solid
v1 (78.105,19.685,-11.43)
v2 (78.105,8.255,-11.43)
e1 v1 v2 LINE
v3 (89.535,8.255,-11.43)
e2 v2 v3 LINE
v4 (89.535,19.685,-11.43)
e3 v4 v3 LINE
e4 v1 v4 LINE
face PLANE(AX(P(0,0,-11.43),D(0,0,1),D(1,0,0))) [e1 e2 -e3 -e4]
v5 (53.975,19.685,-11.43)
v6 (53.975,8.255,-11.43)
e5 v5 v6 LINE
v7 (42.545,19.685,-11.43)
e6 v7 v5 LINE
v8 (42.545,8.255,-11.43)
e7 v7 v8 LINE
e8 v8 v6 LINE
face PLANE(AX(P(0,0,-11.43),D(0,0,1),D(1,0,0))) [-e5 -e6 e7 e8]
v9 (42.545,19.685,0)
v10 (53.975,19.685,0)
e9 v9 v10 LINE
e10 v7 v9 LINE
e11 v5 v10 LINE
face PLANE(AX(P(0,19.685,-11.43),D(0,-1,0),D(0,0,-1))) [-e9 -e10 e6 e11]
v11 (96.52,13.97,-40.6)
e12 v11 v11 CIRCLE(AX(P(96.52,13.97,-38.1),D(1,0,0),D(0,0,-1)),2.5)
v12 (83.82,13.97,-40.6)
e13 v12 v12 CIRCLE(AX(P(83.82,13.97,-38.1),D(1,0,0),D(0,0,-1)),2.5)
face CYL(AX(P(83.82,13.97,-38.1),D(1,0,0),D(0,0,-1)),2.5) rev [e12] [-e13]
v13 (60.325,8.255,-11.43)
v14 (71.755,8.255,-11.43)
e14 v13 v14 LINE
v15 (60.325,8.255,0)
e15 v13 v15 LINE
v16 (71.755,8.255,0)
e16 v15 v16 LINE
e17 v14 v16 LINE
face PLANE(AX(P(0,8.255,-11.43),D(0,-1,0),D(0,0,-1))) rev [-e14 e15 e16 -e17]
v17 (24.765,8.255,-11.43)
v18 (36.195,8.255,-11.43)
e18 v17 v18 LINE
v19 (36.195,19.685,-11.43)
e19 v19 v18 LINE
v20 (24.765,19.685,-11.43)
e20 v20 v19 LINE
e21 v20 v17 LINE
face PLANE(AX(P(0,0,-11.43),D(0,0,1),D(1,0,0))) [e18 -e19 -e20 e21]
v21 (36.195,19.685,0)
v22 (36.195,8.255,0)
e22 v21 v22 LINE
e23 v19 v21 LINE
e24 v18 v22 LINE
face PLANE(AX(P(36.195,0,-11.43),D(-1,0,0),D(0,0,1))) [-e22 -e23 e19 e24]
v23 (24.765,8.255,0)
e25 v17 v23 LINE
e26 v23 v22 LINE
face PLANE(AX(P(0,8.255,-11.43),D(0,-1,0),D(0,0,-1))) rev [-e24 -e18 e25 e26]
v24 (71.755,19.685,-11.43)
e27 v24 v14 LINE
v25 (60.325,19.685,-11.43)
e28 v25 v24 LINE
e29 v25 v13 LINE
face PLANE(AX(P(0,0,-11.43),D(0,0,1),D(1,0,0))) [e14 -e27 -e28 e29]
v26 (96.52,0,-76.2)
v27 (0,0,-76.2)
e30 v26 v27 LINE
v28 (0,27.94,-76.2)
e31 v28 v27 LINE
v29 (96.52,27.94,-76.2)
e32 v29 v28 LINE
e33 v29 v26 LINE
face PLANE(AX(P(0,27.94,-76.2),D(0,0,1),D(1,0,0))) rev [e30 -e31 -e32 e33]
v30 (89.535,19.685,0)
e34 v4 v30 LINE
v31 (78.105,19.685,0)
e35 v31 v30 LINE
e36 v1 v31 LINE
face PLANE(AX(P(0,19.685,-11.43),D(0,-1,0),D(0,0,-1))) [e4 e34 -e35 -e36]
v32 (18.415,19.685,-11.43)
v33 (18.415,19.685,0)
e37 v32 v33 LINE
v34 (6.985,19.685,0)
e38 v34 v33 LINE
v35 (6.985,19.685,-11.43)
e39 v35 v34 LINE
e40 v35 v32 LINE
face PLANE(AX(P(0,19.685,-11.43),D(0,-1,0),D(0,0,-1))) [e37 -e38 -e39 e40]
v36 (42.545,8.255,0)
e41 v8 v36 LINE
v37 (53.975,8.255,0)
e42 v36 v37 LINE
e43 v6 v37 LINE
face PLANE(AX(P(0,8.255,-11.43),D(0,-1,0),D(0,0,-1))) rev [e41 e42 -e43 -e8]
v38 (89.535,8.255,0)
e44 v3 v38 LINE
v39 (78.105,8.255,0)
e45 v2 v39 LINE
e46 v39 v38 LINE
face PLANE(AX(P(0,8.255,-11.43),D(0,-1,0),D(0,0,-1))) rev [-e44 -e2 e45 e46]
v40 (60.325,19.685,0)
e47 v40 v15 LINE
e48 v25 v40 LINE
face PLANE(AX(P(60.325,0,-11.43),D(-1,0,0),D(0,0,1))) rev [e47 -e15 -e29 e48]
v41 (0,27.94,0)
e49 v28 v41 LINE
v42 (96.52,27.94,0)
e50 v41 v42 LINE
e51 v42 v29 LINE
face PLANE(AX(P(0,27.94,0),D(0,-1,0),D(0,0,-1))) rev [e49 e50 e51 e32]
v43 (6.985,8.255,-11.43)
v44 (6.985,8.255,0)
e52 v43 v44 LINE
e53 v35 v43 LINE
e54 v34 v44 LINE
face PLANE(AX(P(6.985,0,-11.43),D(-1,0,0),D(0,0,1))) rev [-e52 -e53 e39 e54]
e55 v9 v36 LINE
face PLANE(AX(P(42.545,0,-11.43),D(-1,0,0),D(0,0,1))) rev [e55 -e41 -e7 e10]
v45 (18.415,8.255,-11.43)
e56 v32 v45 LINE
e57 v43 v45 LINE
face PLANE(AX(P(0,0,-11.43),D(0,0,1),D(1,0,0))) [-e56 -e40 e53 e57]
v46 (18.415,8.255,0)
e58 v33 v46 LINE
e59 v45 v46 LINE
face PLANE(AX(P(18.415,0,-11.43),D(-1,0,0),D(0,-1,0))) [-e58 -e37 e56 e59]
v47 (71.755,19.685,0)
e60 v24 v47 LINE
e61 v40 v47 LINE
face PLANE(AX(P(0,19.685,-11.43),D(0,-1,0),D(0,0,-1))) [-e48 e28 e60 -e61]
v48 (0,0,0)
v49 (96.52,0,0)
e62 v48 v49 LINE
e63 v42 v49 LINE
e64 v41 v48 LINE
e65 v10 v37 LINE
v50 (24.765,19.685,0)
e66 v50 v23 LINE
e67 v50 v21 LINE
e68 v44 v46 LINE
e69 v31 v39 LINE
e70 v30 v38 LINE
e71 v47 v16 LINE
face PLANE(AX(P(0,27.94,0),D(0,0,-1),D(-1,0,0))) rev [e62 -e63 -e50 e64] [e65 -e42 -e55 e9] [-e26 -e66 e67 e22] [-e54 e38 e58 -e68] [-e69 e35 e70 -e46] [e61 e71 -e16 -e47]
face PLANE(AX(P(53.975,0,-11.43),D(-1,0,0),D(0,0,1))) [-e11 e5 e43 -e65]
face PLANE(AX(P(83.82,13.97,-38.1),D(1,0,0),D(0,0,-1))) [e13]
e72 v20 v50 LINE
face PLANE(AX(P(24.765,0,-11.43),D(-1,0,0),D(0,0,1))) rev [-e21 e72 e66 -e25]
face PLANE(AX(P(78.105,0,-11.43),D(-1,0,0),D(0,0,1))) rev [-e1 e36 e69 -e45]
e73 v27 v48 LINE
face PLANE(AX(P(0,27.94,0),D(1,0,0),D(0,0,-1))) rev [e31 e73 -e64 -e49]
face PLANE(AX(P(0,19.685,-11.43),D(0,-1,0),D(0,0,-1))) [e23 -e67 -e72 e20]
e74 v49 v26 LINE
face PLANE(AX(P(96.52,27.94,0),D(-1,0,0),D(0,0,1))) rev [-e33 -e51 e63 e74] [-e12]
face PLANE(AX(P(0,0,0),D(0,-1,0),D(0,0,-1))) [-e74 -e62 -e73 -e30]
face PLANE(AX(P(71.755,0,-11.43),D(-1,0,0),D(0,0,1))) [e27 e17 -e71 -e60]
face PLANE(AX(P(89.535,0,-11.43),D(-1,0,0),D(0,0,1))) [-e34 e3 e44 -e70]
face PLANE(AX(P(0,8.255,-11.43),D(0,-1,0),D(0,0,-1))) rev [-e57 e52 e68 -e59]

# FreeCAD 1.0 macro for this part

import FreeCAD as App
import Part
import Sketcher
Q = App.Units.Quantity


def add_polygon(sketch, points):
    """Adds a closed chain of lines whose ends are joined by coincident constraints."""
    first, n = sketch.GeometryCount, len(points)
    for a, b in zip(points, points[1:] + points[:1]):
        sketch.addGeometry(Part.LineSegment(App.Vector(*a, 0), App.Vector(*b, 0)), False)
    for i in range(n):
        sketch.addConstraint(Sketcher.Constraint("Coincident", first + i, 2, first + (i + 1) % n, 1))

doc = App.newDocument("Part")
params = doc.addObject("Spreadsheet::Sheet", "Params")
for row, (alias, value) in enumerate([
    ("sketch1_height", "3 in"),
    ("sketch1_width", "3.8 in"),
    ("pad1_length", "1.1 in"),
    ("sketch2_width", "0.45 in"),
    ("pocket1_length", "0.45 in"),
    ("pocket2_length", "0.5 in"),
], start=1):
    params.set(f"A{row}", alias)
    params.set(f"B{row}", "=" + value)
    params.setAlias(f"B{row}", alias)

body = doc.addObject("PartDesign::Body", "Body")

sketch1 = body.newObject("Sketcher::SketchObject", "Sketch")
sketch1.AttachmentSupport = (doc.getObject("XZ_Plane"), [""])
sketch1.MapMode = "FlatFace"
add_polygon(sketch1, [(0, -76), (0, 0), (97, 0), (97, -76)])
sketch1.addConstraint(Sketcher.Constraint("Vertical", 0))
sketch1.addConstraint(Sketcher.Constraint("Horizontal", 1))
sketch1.addConstraint(Sketcher.Constraint("Vertical", 2))
sketch1.addConstraint(Sketcher.Constraint("Horizontal", 3))
sketch1.addConstraint(Sketcher.Constraint("Coincident", 0, 2, -1, 1))
sketch1.addConstraint(Sketcher.Constraint("DistanceY", 0, 1, 0, 2, Q("3 in")))
sketch1.addConstraint(Sketcher.Constraint("DistanceX", 1, 1, 1, 2, Q("3.8 in")))
sketch1.setExpression("Constraints[9]", "Params.sketch1_height")
sketch1.setExpression("Constraints[10]", "Params.sketch1_width")
pad1 = body.newObject("PartDesign::Pad", "Pad")
pad1.Profile = sketch1
pad1.setExpression("Length", "Params.pad1_length")
pad1.Reversed = True

sketch2 = body.newObject("Sketcher::SketchObject", "Sketch001")
sketch2.AttachmentSupport = (doc.getObject("XY_Plane"), [""])
sketch2.MapMode = "FlatFace"
add_polygon(sketch2, [(7, 20), (7, 8), (18, 8), (18, 20)])
add_polygon(sketch2, [(25, 20), (25, 8), (36, 8), (36, 20)])
add_polygon(sketch2, [(43, 20), (43, 8), (54, 8), (54, 20)])
add_polygon(sketch2, [(60, 20), (60, 8), (72, 8), (72, 20)])
add_polygon(sketch2, [(78, 20), (78, 8), (90, 8), (90, 20)])
sketch2.addConstraint(Sketcher.Constraint("Vertical", 0))
sketch2.addConstraint(Sketcher.Constraint("Horizontal", 1))
sketch2.addConstraint(Sketcher.Constraint("Vertical", 2))
sketch2.addConstraint(Sketcher.Constraint("Horizontal", 3))
sketch2.addConstraint(Sketcher.Constraint("Vertical", 4))
sketch2.addConstraint(Sketcher.Constraint("Horizontal", 5))
sketch2.addConstraint(Sketcher.Constraint("Vertical", 6))
sketch2.addConstraint(Sketcher.Constraint("Horizontal", 7))
sketch2.addConstraint(Sketcher.Constraint("Vertical", 8))
sketch2.addConstraint(Sketcher.Constraint("Horizontal", 9))
sketch2.addConstraint(Sketcher.Constraint("Vertical", 10))
sketch2.addConstraint(Sketcher.Constraint("Horizontal", 11))
sketch2.addConstraint(Sketcher.Constraint("Vertical", 12))
sketch2.addConstraint(Sketcher.Constraint("Horizontal", 13))
sketch2.addConstraint(Sketcher.Constraint("Vertical", 14))
sketch2.addConstraint(Sketcher.Constraint("Horizontal", 15))
sketch2.addConstraint(Sketcher.Constraint("Vertical", 16))
sketch2.addConstraint(Sketcher.Constraint("Horizontal", 17))
sketch2.addConstraint(Sketcher.Constraint("Vertical", 18))
sketch2.addConstraint(Sketcher.Constraint("Horizontal", 19))
sketch2.addConstraint(Sketcher.Constraint("Horizontal", 1, 2, 4, 2))
sketch2.addConstraint(Sketcher.Constraint("Horizontal", 3, 2, 6, 2))
sketch2.addConstraint(Sketcher.Constraint("Horizontal", 5, 2, 8, 2))
sketch2.addConstraint(Sketcher.Constraint("Horizontal", 7, 2, 10, 2))
sketch2.addConstraint(Sketcher.Constraint("Horizontal", 9, 2, 12, 2))
sketch2.addConstraint(Sketcher.Constraint("Horizontal", 11, 2, 14, 2))
sketch2.addConstraint(Sketcher.Constraint("Horizontal", 13, 2, 16, 2))
sketch2.addConstraint(Sketcher.Constraint("Horizontal", 15, 2, 18, 2))
sketch2.addConstraint(Sketcher.Constraint("Equal", 3, 5))
sketch2.addConstraint(Sketcher.Constraint("Equal", 7, 9))
sketch2.addConstraint(Sketcher.Constraint("Equal", 11, 13))
sketch2.addConstraint(Sketcher.Constraint("Equal", 15, 17))
sketch2.addConstraint(Sketcher.Constraint("Equal", 19, 0))
sketch2.addConstraint(Sketcher.Constraint("DistanceX", 1, 1, 1, 2, Q("0.45 in")))
sketch2.addConstraint(Sketcher.Constraint("DistanceX", 0, 2, 4, 2, Q("0.7 in")))
sketch2.addConstraint(Sketcher.Constraint("DistanceX", 4, 2, 8, 2, Q("0.7 in")))
sketch2.addConstraint(Sketcher.Constraint("DistanceX", 8, 2, 12, 2, Q("0.7 in")))
sketch2.addConstraint(Sketcher.Constraint("DistanceX", 12, 2, 16, 2, Q("0.7 in")))
sketch2.addConstraint(Sketcher.Constraint("DistanceX", -1, 1, 0, 2, Q("0.275 in")))
sketch2.addConstraint(Sketcher.Constraint("DistanceY", -1, 1, 0, 2, Q("0.325 in")))
sketch2.setExpression("Constraints[53]", "Params.sketch2_width")
pocket1 = body.newObject("PartDesign::Pocket", "Pocket")
pocket1.Profile = sketch2
pocket1.setExpression("Length", "Params.pocket1_length")

sketch3 = body.newObject("Sketcher::SketchObject", "Sketch002")
sketch3.AttachmentSupport = (doc.getObject("YZ_Plane"), [""])
sketch3.MapMode = "FlatFace"
sketch3.AttachmentOffset = App.Placement(App.Vector(0, 0, 3.8 * 25.4), App.Rotation())
sketch3.addGeometry(Part.Circle(App.Vector(14, -38.1, 0), App.Vector(0, 0, 1), 2.5), False)
sketch3.addConstraint(Sketcher.Constraint("DistanceY", 0, 3, -1, 1, Q("1.5 in")))
sketch3.addConstraint(Sketcher.Constraint("Diameter", 0, Q("5 mm")))
sketch3.addConstraint(Sketcher.Constraint("DistanceX", -1, 1, 0, 3, Q("0.55 in")))
pocket2 = body.newObject("PartDesign::Pocket", "Pocket001")
pocket2.Profile = sketch3
pocket2.setExpression("Length", "Params.pocket2_length")

doc.recompute()
